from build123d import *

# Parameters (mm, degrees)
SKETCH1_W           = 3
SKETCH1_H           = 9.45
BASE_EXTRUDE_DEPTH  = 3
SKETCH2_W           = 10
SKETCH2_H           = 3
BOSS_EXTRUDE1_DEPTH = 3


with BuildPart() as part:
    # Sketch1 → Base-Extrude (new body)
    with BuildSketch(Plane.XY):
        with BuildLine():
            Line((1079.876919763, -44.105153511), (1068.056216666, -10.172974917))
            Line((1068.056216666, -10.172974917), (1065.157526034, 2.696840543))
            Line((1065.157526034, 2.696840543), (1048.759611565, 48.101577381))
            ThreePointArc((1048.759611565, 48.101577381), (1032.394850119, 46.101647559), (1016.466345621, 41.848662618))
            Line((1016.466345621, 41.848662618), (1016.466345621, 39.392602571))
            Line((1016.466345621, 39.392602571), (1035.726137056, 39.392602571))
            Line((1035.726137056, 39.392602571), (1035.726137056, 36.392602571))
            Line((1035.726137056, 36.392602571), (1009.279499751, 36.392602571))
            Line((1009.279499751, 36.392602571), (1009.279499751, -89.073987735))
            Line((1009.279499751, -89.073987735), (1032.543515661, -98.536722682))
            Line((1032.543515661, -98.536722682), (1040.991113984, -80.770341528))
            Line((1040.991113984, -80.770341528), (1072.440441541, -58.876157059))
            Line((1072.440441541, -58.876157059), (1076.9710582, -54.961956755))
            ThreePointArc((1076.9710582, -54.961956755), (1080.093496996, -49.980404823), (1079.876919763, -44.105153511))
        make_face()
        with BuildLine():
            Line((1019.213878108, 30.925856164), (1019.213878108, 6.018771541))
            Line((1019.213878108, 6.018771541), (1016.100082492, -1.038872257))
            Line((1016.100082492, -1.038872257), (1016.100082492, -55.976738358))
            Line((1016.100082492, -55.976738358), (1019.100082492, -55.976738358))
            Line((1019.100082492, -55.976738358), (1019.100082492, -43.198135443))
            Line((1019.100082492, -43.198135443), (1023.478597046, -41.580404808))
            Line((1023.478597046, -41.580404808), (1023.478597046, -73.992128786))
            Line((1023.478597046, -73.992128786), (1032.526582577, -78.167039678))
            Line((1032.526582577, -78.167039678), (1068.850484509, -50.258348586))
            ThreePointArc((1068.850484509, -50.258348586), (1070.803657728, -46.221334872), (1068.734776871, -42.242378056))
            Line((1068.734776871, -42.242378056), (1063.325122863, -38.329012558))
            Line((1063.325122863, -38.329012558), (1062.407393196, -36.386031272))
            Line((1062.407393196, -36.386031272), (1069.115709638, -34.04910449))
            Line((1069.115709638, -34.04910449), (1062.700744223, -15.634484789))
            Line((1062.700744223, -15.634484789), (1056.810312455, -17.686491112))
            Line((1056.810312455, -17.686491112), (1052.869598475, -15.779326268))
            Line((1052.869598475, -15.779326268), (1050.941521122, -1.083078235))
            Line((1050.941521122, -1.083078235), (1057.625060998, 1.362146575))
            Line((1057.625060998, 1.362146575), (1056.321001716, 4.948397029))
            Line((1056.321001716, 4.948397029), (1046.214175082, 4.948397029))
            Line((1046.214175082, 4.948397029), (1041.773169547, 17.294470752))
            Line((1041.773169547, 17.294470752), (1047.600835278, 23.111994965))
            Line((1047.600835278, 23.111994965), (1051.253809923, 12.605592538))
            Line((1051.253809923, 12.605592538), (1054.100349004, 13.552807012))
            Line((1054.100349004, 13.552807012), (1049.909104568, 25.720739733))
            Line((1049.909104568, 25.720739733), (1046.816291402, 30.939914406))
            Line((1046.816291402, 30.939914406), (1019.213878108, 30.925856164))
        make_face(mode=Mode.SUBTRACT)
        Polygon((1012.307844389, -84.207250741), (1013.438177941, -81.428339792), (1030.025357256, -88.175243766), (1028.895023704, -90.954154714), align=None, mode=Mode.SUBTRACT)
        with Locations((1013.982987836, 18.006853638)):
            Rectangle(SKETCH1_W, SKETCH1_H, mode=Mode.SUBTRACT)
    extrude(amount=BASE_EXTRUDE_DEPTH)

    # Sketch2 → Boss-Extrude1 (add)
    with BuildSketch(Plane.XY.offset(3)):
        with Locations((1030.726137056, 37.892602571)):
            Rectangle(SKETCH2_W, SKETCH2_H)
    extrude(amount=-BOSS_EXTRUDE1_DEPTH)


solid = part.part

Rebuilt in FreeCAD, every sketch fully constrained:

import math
import FreeCAD as App
import Part
import Sketcher

V = App.Vector


def add_polygon(sketch, points):
    """Adds a closed chain of lines whose ends are joined by coincident constraints."""
    first, n = sketch.GeometryCount, len(points)
    for a, b in zip(points, points[1:] + points[:1]):
        sketch.addGeometry(Part.LineSegment(App.Vector(*a, 0), App.Vector(*b, 0)), False)
    for i in range(n):
        sketch.addConstraint(Sketcher.Constraint("Coincident", first + i, 2, first + (i + 1) % n, 1))

doc = App.newDocument("Part")
body = doc.addObject("PartDesign::Body", "Body")

# Sketch on XY plane
sketch1 = body.newObject("Sketcher::SketchObject", "Sketch")
sketch1.AttachmentSupport = (doc.getObject("XY_Plane"), [""])
sketch1.MapMode = "FlatFace"
sketch1.addGeometry(Part.LineSegment(V(1079.9, -44.1, 0), V(1068.1, -10.2, 0)), False)  # 0
sketch1.addGeometry(Part.LineSegment(V(1068.1, -10.2, 0), V(1065.2, 2.7, 0)), False)  # 1
sketch1.addGeometry(Part.LineSegment(V(1065.2, 2.7, 0), V(1048.8, 48.1, 0)), False)  # 2
sketch1.addGeometry(Part.ArcOfCircle(Part.Circle(V(1054.9, -70.2, 0), V(0, 0, 1), 118.4), math.radians(92.98), math.radians(108.94)), False)  # 3
sketch1.addGeometry(Part.LineSegment(V(1016.5, 41.8, 0), V(1016.5, 39.4, 0)), False)  # 4
sketch1.addGeometry(Part.LineSegment(V(1016.5, 39.4, 0), V(1035.7, 39.4, 0)), False)  # 5
sketch1.addGeometry(Part.LineSegment(V(1035.7, 39.4, 0), V(1035.7, 36.4, 0)), False)  # 6
sketch1.addGeometry(Part.LineSegment(V(1035.7, 36.4, 0), V(1009.3, 36.4, 0)), False)  # 7
sketch1.addGeometry(Part.LineSegment(V(1009.3, 36.4, 0), V(1009.3, -89.1, 0)), False)  # 8
sketch1.addGeometry(Part.LineSegment(V(1009.3, -89.1, 0), V(1032.5, -98.5, 0)), False)  # 9
sketch1.addGeometry(Part.LineSegment(V(1032.5, -98.5, 0), V(1041, -80.8, 0)), False)  # 10
sketch1.addGeometry(Part.LineSegment(V(1041, -80.8, 0), V(1072.4, -58.9, 0)), False)  # 11
sketch1.addGeometry(Part.LineSegment(V(1072.4, -58.9, 0), V(1077, -55, 0)), False)  # 12
sketch1.addGeometry(Part.ArcOfCircle(Part.Circle(V(1070.4, -47.4, 0), V(0, 0, 1), 10), math.radians(-49), math.radians(19)), False)  # 13
add_polygon(sketch1, [(1028.9, -91), (1012.3, -84.2), (1013.4, -81.4), (1030, -88.2)])  # lines 14-17
add_polygon(sketch1, [(1015.5, 13.3), (1012.5, 13.3), (1012.5, 22.7), (1015.5, 22.7)])  # lines 18-21
sketch1.addGeometry(Part.LineSegment(V(1019.2, 6, 0), V(1019.2, 30.9, 0)), False)  # 22
sketch1.addGeometry(Part.LineSegment(V(1019.2, 30.9, 0), V(1046.8, 30.9, 0)), False)  # 23
sketch1.addGeometry(Part.LineSegment(V(1046.8, 30.9, 0), V(1049.9, 25.7, 0)), False)  # 24
sketch1.addGeometry(Part.LineSegment(V(1049.9, 25.7, 0), V(1054.1, 13.6, 0)), False)  # 25
sketch1.addGeometry(Part.LineSegment(V(1054.1, 13.6, 0), V(1051.3, 12.6, 0)), False)  # 26
sketch1.addGeometry(Part.LineSegment(V(1051.3, 12.6, 0), V(1047.6, 23.1, 0)), False)  # 27
sketch1.addGeometry(Part.LineSegment(V(1047.6, 23.1, 0), V(1041.8, 17.3, 0)), False)  # 28
sketch1.addGeometry(Part.LineSegment(V(1041.8, 17.3, 0), V(1046.2, 4.9, 0)), False)  # 29
sketch1.addGeometry(Part.LineSegment(V(1046.2, 4.9, 0), V(1056.3, 4.9, 0)), False)  # 30
sketch1.addGeometry(Part.LineSegment(V(1056.3, 4.9, 0), V(1057.6, 1.4, 0)), False)  # 31
sketch1.addGeometry(Part.LineSegment(V(1057.6, 1.4, 0), V(1050.9, -1.1, 0)), False)  # 32
sketch1.addGeometry(Part.LineSegment(V(1050.9, -1.1, 0), V(1052.9, -15.8, 0)), False)  # 33
sketch1.addGeometry(Part.LineSegment(V(1052.9, -15.8, 0), V(1056.8, -17.7, 0)), False)  # 34
sketch1.addGeometry(Part.LineSegment(V(1056.8, -17.7, 0), V(1062.7, -15.6, 0)), False)  # 35
sketch1.addGeometry(Part.LineSegment(V(1062.7, -15.6, 0), V(1069.1, -34, 0)), False)  # 36
sketch1.addGeometry(Part.LineSegment(V(1069.1, -34, 0), V(1062.4, -36.4, 0)), False)  # 37
sketch1.addGeometry(Part.LineSegment(V(1062.4, -36.4, 0), V(1063.3, -38.3, 0)), False)  # 38
sketch1.addGeometry(Part.LineSegment(V(1063.3, -38.3, 0), V(1068.7, -42.2, 0)), False)  # 39
sketch1.addGeometry(Part.ArcOfCircle(Part.Circle(V(1065.8, -46.3, 0), V(0, 0, 1), 5), math.radians(-52), math.radians(54)), False)  # 40
sketch1.addGeometry(Part.LineSegment(V(1068.9, -50.3, 0), V(1032.5, -78.2, 0)), False)  # 41
sketch1.addGeometry(Part.LineSegment(V(1032.5, -78.2, 0), V(1023.5, -74, 0)), False)  # 42
sketch1.addGeometry(Part.LineSegment(V(1023.5, -74, 0), V(1023.5, -41.6, 0)), False)  # 43
sketch1.addGeometry(Part.LineSegment(V(1023.5, -41.6, 0), V(1019.1, -43.2, 0)), False)  # 44
sketch1.addGeometry(Part.LineSegment(V(1019.1, -43.2, 0), V(1019.1, -56, 0)), False)  # 45
sketch1.addGeometry(Part.LineSegment(V(1019.1, -56, 0), V(1016.1, -56, 0)), False)  # 46
sketch1.addGeometry(Part.LineSegment(V(1016.1, -56, 0), V(1016.1, -1, 0)), False)  # 47
sketch1.addGeometry(Part.LineSegment(V(1016.1, -1, 0), V(1019.2, 6, 0)), False)  # 48
sketch1.addConstraint(Sketcher.Constraint("Coincident", 0, 2, 1, 1))
sketch1.addConstraint(Sketcher.Constraint("Coincident", 1, 2, 2, 1))
sketch1.addConstraint(Sketcher.Constraint("Coincident", 2, 2, 3, 1))
sketch1.addConstraint(Sketcher.Constraint("Coincident", 3, 2, 4, 1))
sketch1.addConstraint(Sketcher.Constraint("Coincident", 4, 2, 5, 1))
sketch1.addConstraint(Sketcher.Constraint("Coincident", 5, 2, 6, 1))
sketch1.addConstraint(Sketcher.Constraint("Coincident", 6, 2, 7, 1))
sketch1.addConstraint(Sketcher.Constraint("Coincident", 7, 2, 8, 1))
sketch1.addConstraint(Sketcher.Constraint("Coincident", 8, 2, 9, 1))
sketch1.addConstraint(Sketcher.Constraint("Coincident", 9, 2, 10, 1))
sketch1.addConstraint(Sketcher.Constraint("Coincident", 10, 2, 11, 1))
sketch1.addConstraint(Sketcher.Constraint("Coincident", 11, 2, 12, 1))
sketch1.addConstraint(Sketcher.Constraint("Tangent", 12, 2, 13, 1))
sketch1.addConstraint(Sketcher.Constraint("Tangent", 13, 2, 0, 1))
sketch1.addConstraint(Sketcher.Constraint("Coincident", 22, 2, 23, 1))
sketch1.addConstraint(Sketcher.Constraint("Coincident", 23, 2, 24, 1))
sketch1.addConstraint(Sketcher.Constraint("Coincident", 24, 2, 25, 1))
sketch1.addConstraint(Sketcher.Constraint("Coincident", 25, 2, 26, 1))
sketch1.addConstraint(Sketcher.Constraint("Coincident", 26, 2, 27, 1))
sketch1.addConstraint(Sketcher.Constraint("Coincident", 27, 2, 28, 1))
sketch1.addConstraint(Sketcher.Constraint("Coincident", 28, 2, 29, 1))
sketch1.addConstraint(Sketcher.Constraint("Coincident", 29, 2, 30, 1))
sketch1.addConstraint(Sketcher.Constraint("Coincident", 30, 2, 31, 1))
sketch1.addConstraint(Sketcher.Constraint("Coincident", 31, 2, 32, 1))
sketch1.addConstraint(Sketcher.Constraint("Coincident", 32, 2, 33, 1))
sketch1.addConstraint(Sketcher.Constraint("Coincident", 33, 2, 34, 1))
sketch1.addConstraint(Sketcher.Constraint("Coincident", 34, 2, 35, 1))
sketch1.addConstraint(Sketcher.Constraint("Coincident", 35, 2, 36, 1))
sketch1.addConstraint(Sketcher.Constraint("Coincident", 36, 2, 37, 1))
sketch1.addConstraint(Sketcher.Constraint("Coincident", 37, 2, 38, 1))
sketch1.addConstraint(Sketcher.Constraint("Coincident", 38, 2, 39, 1))
sketch1.addConstraint(Sketcher.Constraint("Tangent", 39, 2, 40, 2))
sketch1.addConstraint(Sketcher.Constraint("Tangent", 40, 1, 41, 1))
sketch1.addConstraint(Sketcher.Constraint("Coincident", 41, 2, 42, 1))
sketch1.addConstraint(Sketcher.Constraint("Coincident", 42, 2, 43, 1))
sketch1.addConstraint(Sketcher.Constraint("Coincident", 43, 2, 44, 1))
sketch1.addConstraint(Sketcher.Constraint("Coincident", 44, 2, 45, 1))
sketch1.addConstraint(Sketcher.Constraint("Coincident", 45, 2, 46, 1))
sketch1.addConstraint(Sketcher.Constraint("Coincident", 46, 2, 47, 1))
sketch1.addConstraint(Sketcher.Constraint("Coincident", 47, 2, 48, 1))
sketch1.addConstraint(Sketcher.Constraint("Coincident", 48, 2, 22, 1))
sketch1.addConstraint(Sketcher.Constraint("Vertical", 4))
sketch1.addConstraint(Sketcher.Constraint("Horizontal", 5))
sketch1.addConstraint(Sketcher.Constraint("Vertical", 6))
sketch1.addConstraint(Sketcher.Constraint("Horizontal", 7))
sketch1.addConstraint(Sketcher.Constraint("Vertical", 8))
sketch1.addConstraint(Sketcher.Constraint("Horizontal", 18))
sketch1.addConstraint(Sketcher.Constraint("Vertical", 19))
sketch1.addConstraint(Sketcher.Constraint("Horizontal", 20))
sketch1.addConstraint(Sketcher.Constraint("Vertical", 21))
sketch1.addConstraint(Sketcher.Constraint("Vertical", 22))
sketch1.addConstraint(Sketcher.Constraint("Horizontal", 30))
sketch1.addConstraint(Sketcher.Constraint("Vertical", 43))
sketch1.addConstraint(Sketcher.Constraint("Vertical", 45))
sketch1.addConstraint(Sketcher.Constraint("Horizontal", 46))
sketch1.addConstraint(Sketcher.Constraint("Vertical", 47))
sketch1.addConstraint(Sketcher.Constraint("Parallel", 9, 14))
sketch1.addConstraint(Sketcher.Constraint("Perpendicular", 14, 15))
sketch1.addConstraint(Sketcher.Constraint("Perpendicular", 15, 16))
sketch1.addConstraint(Sketcher.Constraint("Perpendicular", 16, 17))
sketch1.addConstraint(Sketcher.Constraint("Perpendicular", 0, 35))
sketch1.addConstraint(Sketcher.Constraint("Perpendicular", 35, 36))
sketch1.addConstraint(Sketcher.Constraint("Perpendicular", 36, 37))
sketch1.addConstraint(Sketcher.Constraint("Equal", 20, 46))
sketch1.addConstraint(Sketcher.Constraint("Equal", 46, 6))
sketch1.addConstraint(Sketcher.Constraint("Equal", 17, 26))
sketch1.addConstraint(Sketcher.Constraint("Radius", 13, 10.0))
sketch1.addConstraint(Sketcher.Constraint("Radius", 40, 5.0))
sketch1.addConstraint(Sketcher.Constraint("DistanceX", 18, 2, 18, 1, 3.0))
sketch1.addConstraint(Sketcher.Constraint("Distance", 15, 3.0))
sketch1.addConstraint(Sketcher.Constraint("Distance", 36, 19.5))
sketch1.addConstraint(Sketcher.Constraint("DistanceY", 19, 1, 19, 2, 9.45))
sketch1.addConstraint(Sketcher.Constraint("DistanceX", -1, 1, 30, 2, 1056.321002))
sketch1.addConstraint(Sketcher.Constraint("Radius", 3, 118.438642))
sketch1.addConstraint(Sketcher.Constraint("DistanceX", 1, 2, 13, 3, 5.275999))
sketch1.addConstraint(Sketcher.Constraint("DistanceY", 15, 2, 10, 2, 0.657998))
sketch1.addConstraint(Sketcher.Constraint("DistanceX", 43, 2, 33, 2, 29.391001))
sketch1.addConstraint(Sketcher.Constraint("Distance", 32, 7.116799))
sketch1.addConstraint(Sketcher.Constraint("DistanceX", 5, 1, 5, 2, 19.259791))
sketch1.addConstraint(Sketcher.Constraint("DistanceY", 4, 2, 4, 1, 2.45606))
sketch1.addConstraint(Sketcher.Constraint("DistanceY", 8, 2, 8, 1, 125.46659))
sketch1.addConstraint(Sketcher.Constraint("DistanceY", 40, 3, -1, 1, 46.293501))
sketch1.addConstraint(Sketcher.Constraint("DistanceX", -1, 1, 7, 2, 1009.2795))
sketch1.addConstraint(Sketcher.Constraint("DistanceX", -1, 1, 33, 2, 1052.869598))
sketch1.addConstraint(Sketcher.Constraint("DistanceY", 3, 3, 0, 2, 60.0043))
sketch1.addConstraint(Sketcher.Constraint("DistanceX", 9, 2, 0, 2, 35.512701))
sketch1.addConstraint(Sketcher.Constraint("DistanceX", 9, 2, 10, 2, 8.447598))
sketch1.addConstraint(Sketcher.Constraint("DistanceY", 11, 2, 12, 2, 3.9142))
sketch1.addConstraint(Sketcher.Constraint("DistanceY", 1, 2, 24, 2, 23.023899))
sketch1.addConstraint(Sketcher.Constraint("DistanceX", 6, 2, 27, 2, 11.874698))
sketch1.addConstraint(Sketcher.Constraint("DistanceX", 40, 3, 39, 2, 2.930598))
sketch1.addConstraint(Sketcher.Constraint("DistanceY", 13, 3, 39, 2, 5.152501))
sketch1.addConstraint(Sketcher.Constraint("DistanceY", 10, 2, 41, 2, 2.603302))
sketch1.addConstraint(Sketcher.Constraint("DistanceX", 44, 2, 41, 2, 13.4265))
sketch1.addConstraint(Sketcher.Constraint("DistanceY", 41, 2, 45, 2, 22.190301))
sketch1.addConstraint(Sketcher.Constraint("Distance", 9, 25.114892))
sketch1.addConstraint(Sketcher.Constraint("Distance", 11, 38.31991))
sketch1.addConstraint(Sketcher.Constraint("Distance", 14, 17.906849))
sketch1.addConstraint(Sketcher.Constraint("Distance", 27, 11.123341))
sketch1.addConstraint(Sketcher.Constraint("Distance", 29, 13.120521))
sketch1.addConstraint(Sketcher.Constraint("Distance", 35, 6.237621))
sketch1.addConstraint(Sketcher.Constraint("Distance", 44, 4.667809))
sketch1.addConstraint(Sketcher.Constraint("DistanceX", 7, 2, 7, 1, 26.446637))
sketch1.addConstraint(Sketcher.Constraint("DistanceX", 30, 1, 30, 2, 10.106827))
sketch1.addConstraint(Sketcher.Constraint("DistanceY", 22, 1, 22, 2, 24.907085))
sketch1.addConstraint(Sketcher.Constraint("DistanceY", 43, 1, 43, 2, 32.411724))
sketch1.addConstraint(Sketcher.Constraint("DistanceY", 45, 2, 45, 1, 12.778603))
sketch1.addConstraint(Sketcher.Constraint("DistanceY", 47, 1, 47, 2, 54.937866))
sketch1.addConstraint(Sketcher.Constraint("DistanceX", -1, 1, 3, 3, 1054.909829))
sketch1.addConstraint(Sketcher.Constraint("DistanceX", -1, 1, 40, 3, 1065.804179))
sketch1.addConstraint(Sketcher.Constraint("DistanceY", -1, 1, 1, 2, 2.696841))
sketch1.addConstraint(Sketcher.Constraint("DistanceX", -1, 1, 2, 2, 1048.759612))
sketch1.addConstraint(Sketcher.Constraint("DistanceY", 10, 2, -1, 1, 80.770342))
sketch1.addConstraint(Sketcher.Constraint("DistanceX", -1, 1, 11, 2, 1072.440442))
sketch1.addConstraint(Sketcher.Constraint("DistanceX", -1, 1, 12, 2, 1076.971058))
sketch1.addConstraint(Sketcher.Constraint("DistanceX", -1, 1, 13, 2, 1079.87692))
sketch1.addConstraint(Sketcher.Constraint("DistanceX", -1, 1, 22, 2, 1019.213878))
sketch1.addConstraint(Sketcher.Constraint("DistanceX", -1, 1, 23, 2, 1046.816291))
sketch1.addConstraint(Sketcher.Constraint("DistanceX", -1, 1, 25, 2, 1054.100349))
sketch1.addConstraint(Sketcher.Constraint("DistanceX", -1, 1, 26, 2, 1051.25381))
sketch1.addConstraint(Sketcher.Constraint("DistanceX", -1, 1, 28, 2, 1041.77317))
sketch1.addConstraint(Sketcher.Constraint("DistanceY", -1, 1, 28, 2, 17.294471))
sketch1.addConstraint(Sketcher.Constraint("DistanceX", -1, 1, 31, 2, 1057.625061))
sketch1.addConstraint(Sketcher.Constraint("DistanceX", -1, 1, 32, 2, 1050.941521))
sketch1.addConstraint(Sketcher.Constraint("DistanceY", 32, 2, -1, 1, 1.083078))
sketch1.addConstraint(Sketcher.Constraint("DistanceY", 34, 2, -1, 1, 17.686491))
sketch1.addConstraint(Sketcher.Constraint("DistanceX", -1, 1, 36, 2, 1069.11571))
sketch1.addConstraint(Sketcher.Constraint("DistanceY", 37, 2, -1, 1, 36.386031))
sketch1.addConstraint(Sketcher.Constraint("DistanceY", 42, 2, -1, 1, 73.992129))
sketch1.addConstraint(Sketcher.Constraint("DistanceY", -1, 1, 48, 2, 6.018772))
sketch1.addConstraint(Sketcher.Constraint("DistanceX", 14, 2, 9, 2, 20.235671))
sketch1.addConstraint(Sketcher.Constraint("DistanceX", 7, 2, 18, 2, 3.203488))
sketch1.addConstraint(Sketcher.Constraint("DistanceY", 18, 2, 7, 2, 23.110749))
sketch1.addConstraint(Sketcher.Constraint("DistanceY", 23, 2, 6, 2, 5.452688))
sketch1.addConstraint(Sketcher.Constraint("DistanceX", 24, 2, 1, 2, 15.248421))
sketch1.addConstraint(Sketcher.Constraint("DistanceY", 0, 2, 25, 2, 23.725782))
sketch1.addConstraint(Sketcher.Constraint("DistanceY", 33, 2, 32, 2, 14.696248))
sketch1.addConstraint(Sketcher.Constraint("DistanceX", 37, 2, 38, 2, 0.91773))
pad1 = body.newObject("PartDesign::Pad", "Pad")
pad1.Profile = sketch1
pad1.Length = 3

# Sketch on XY plane
sketch2 = body.newObject("Sketcher::SketchObject", "Sketch001")
sketch2.AttachmentSupport = (doc.getObject("XY_Plane"), [""])
sketch2.MapMode = "FlatFace"
sketch2.AttachmentOffset = App.Placement(V(0, 0, 3), App.Rotation())
add_polygon(sketch2, [(1025.7, 39.4), (1025.7, 36.4), (1035.7, 36.4), (1035.7, 39.4)])  # lines 0-3
sketch2.addConstraint(Sketcher.Constraint("Vertical", 0))
sketch2.addConstraint(Sketcher.Constraint("Horizontal", 1))
sketch2.addConstraint(Sketcher.Constraint("Vertical", 2))
sketch2.addConstraint(Sketcher.Constraint("Horizontal", 3))
sketch2.addConstraint(Sketcher.Constraint("DistanceX", 1, 1, 1, 2, 10.0))
sketch2.addConstraint(Sketcher.Constraint("DistanceY", 0, 2, 0, 1, 3.0))
sketch2.addConstraint(Sketcher.Constraint("DistanceX", -1, 1, 0, 2, 1025.726137))
sketch2.addConstraint(Sketcher.Constraint("DistanceY", -1, 1, 0, 2, 36.392603))
pad2 = body.newObject("PartDesign::Pad", "Pad001")
pad2.Profile = sketch2
pad2.Length = 3
pad2.Reversed = True

doc.recompute()
